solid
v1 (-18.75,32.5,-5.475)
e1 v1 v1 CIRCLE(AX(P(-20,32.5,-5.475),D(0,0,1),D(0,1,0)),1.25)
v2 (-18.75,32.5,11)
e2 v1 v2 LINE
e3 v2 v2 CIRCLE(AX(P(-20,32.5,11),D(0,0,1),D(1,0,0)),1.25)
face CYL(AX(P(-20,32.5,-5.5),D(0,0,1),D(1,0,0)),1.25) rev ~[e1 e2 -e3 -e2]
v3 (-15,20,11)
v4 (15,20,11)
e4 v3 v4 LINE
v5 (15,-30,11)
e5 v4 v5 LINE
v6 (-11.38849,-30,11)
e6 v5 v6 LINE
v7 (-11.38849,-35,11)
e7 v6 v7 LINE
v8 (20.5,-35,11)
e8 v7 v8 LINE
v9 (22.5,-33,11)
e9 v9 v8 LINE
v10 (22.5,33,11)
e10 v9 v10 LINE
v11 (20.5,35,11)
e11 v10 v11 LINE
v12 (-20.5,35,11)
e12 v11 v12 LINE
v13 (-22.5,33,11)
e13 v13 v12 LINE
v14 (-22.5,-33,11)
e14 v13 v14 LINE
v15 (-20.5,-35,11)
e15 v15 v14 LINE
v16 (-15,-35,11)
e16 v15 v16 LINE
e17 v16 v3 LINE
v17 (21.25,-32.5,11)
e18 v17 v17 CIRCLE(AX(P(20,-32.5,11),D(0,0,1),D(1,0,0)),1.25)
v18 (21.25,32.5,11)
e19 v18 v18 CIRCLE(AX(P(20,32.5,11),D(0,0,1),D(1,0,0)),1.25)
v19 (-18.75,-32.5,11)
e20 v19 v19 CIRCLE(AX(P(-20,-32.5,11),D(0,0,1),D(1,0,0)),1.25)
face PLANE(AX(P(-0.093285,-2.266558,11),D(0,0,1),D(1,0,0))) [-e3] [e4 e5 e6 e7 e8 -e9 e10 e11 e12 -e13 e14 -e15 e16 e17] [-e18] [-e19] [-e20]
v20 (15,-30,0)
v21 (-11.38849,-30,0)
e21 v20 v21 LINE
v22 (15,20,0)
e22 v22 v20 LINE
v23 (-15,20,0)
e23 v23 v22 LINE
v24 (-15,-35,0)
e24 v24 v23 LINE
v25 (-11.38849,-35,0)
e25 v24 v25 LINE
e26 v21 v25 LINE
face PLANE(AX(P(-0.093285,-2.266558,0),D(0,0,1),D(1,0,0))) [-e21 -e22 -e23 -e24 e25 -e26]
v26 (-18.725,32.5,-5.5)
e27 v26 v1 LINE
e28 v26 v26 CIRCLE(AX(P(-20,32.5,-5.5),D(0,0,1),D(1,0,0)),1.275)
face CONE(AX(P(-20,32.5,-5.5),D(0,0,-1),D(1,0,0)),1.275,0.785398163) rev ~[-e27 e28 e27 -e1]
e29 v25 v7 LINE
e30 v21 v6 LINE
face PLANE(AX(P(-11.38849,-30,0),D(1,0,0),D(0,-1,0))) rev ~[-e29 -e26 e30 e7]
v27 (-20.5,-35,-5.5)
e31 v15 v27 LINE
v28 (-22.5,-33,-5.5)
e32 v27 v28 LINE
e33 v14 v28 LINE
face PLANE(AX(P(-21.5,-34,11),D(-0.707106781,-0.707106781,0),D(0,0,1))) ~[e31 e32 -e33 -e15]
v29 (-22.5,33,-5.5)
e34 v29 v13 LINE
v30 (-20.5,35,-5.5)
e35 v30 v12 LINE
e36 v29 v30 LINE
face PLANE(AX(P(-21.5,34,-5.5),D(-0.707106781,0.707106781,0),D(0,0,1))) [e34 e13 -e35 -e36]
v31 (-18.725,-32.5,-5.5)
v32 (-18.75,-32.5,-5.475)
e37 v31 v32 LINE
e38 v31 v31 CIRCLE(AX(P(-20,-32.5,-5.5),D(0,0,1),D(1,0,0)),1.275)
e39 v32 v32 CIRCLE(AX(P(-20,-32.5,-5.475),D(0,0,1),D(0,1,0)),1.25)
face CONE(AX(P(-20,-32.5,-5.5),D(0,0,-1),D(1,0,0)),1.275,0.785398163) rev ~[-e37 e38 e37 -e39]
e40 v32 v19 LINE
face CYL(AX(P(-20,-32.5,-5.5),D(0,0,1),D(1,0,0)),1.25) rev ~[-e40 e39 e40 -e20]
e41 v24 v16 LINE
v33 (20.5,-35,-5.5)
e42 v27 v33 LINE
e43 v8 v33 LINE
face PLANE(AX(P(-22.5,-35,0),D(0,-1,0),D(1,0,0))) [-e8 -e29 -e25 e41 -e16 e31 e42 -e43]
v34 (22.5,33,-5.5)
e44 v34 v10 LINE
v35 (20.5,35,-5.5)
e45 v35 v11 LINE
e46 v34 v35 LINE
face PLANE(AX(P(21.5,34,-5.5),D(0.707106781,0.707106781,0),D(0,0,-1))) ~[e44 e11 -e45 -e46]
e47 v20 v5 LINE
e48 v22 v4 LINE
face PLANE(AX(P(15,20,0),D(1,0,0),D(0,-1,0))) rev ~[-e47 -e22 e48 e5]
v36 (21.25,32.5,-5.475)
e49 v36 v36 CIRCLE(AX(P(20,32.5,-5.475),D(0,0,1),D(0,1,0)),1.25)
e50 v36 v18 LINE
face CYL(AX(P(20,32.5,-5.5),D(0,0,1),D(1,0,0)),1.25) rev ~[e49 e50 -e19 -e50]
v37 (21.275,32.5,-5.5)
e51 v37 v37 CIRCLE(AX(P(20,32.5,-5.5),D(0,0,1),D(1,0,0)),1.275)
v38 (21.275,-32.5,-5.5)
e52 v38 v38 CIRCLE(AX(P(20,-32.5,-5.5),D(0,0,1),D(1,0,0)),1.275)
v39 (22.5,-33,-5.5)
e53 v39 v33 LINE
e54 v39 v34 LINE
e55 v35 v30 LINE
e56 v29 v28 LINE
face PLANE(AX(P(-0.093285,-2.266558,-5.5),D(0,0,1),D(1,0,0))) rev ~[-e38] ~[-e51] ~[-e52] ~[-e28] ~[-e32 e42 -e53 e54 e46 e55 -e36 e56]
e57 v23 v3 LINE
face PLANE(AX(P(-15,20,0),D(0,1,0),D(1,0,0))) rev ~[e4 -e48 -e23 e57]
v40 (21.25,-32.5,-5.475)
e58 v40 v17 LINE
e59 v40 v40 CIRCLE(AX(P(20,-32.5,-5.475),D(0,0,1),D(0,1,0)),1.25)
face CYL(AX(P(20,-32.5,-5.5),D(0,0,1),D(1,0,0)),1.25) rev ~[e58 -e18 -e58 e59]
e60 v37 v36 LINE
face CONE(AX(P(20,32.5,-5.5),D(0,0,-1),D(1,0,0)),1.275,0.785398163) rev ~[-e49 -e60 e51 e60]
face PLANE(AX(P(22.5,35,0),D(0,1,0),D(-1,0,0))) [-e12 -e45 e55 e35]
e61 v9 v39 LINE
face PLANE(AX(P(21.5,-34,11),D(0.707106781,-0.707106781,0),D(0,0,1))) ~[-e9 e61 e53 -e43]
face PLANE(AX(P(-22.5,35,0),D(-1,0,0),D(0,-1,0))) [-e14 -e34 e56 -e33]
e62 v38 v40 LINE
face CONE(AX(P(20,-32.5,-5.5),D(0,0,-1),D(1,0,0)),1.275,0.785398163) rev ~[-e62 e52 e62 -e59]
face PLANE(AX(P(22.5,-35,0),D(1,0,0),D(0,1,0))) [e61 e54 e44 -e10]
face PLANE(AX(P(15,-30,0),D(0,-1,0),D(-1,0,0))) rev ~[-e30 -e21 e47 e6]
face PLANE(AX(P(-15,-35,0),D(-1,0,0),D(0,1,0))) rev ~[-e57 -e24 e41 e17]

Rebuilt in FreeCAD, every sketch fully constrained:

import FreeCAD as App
import Part
import Sketcher
from FreeCAD import Vector


def edges_at(feature, points):
    """Names of the edges that pass closest to the given points."""
    edges = feature.Shape.Edges
    near = lambda p: min(range(len(edges)), key=lambda i: edges[i].distToShape(Part.Vertex(*p))[0])
    return sorted({f"Edge{near(p) + 1}" for p in points})


def add_polygon(sketch, points):
    """Adds a closed chain of lines whose ends are joined by coincident constraints."""
    first, n = sketch.GeometryCount, len(points)
    for a, b in zip(points, points[1:] + points[:1]):
        sketch.addGeometry(Part.LineSegment(App.Vector(*a, 0), App.Vector(*b, 0)), False)
    for i in range(n):
        sketch.addConstraint(Sketcher.Constraint("Coincident", first + i, 2, first + (i + 1) % n, 1))

doc = App.newDocument("Part")
body = doc.addObject("PartDesign::Body", "Body")

sketch1 = body.newObject("Sketcher::SketchObject", "Sketch")
sketch1.AttachmentSupport = (doc.getObject("XY_Plane"), [""])
sketch1.MapMode = "FlatFace"
add_polygon(sketch1, [(-11.38849, -35), (22.5, -35), (22.5, 35), (-22.5, 35), (-22.5, -35), (-15, -35), (-15, 20), (15, 20), (15, -30), (-11.38849, -30)])
sketch1.addConstraint([
    Sketcher.Constraint("Horizontal", 0),
    Sketcher.Constraint("Vertical", 1),
    Sketcher.Constraint("Horizontal", 2),
    Sketcher.Constraint("Vertical", 3),
    Sketcher.Constraint("Horizontal", 4),
    Sketcher.Constraint("Vertical", 5),
    Sketcher.Constraint("Horizontal", 6),
    Sketcher.Constraint("Vertical", 7),
    Sketcher.Constraint("Horizontal", 8),
    Sketcher.Constraint("Vertical", 9),
    Sketcher.Constraint("Symmetric", 0, 2, 2, 2, -1, 1),
    Sketcher.Constraint("Horizontal", 0, 2, 3, 2),
    Sketcher.Constraint("DistanceX", 2, 2, 2, 1, 45.0),
    Sketcher.Constraint("DistanceX", 6, 1, 6, 2, 30.0),
    Sketcher.Constraint("DistanceY", 1, 1, 1, 2, 70.0),
    Sketcher.Constraint("DistanceY", 5, 1, 5, 2, 55.0),
    Sketcher.Constraint("DistanceY", 7, 2, 7, 1, 50.0),
    Sketcher.Constraint("DistanceX", 4, 1, 4, 2, 7.5),
    Sketcher.Constraint("DistanceX", 0, 1, 0, 2, 33.88849),
])
pad1 = body.newObject("PartDesign::Pad", "Pad")
pad1.Profile = sketch1
pad1.Length = 11

sketch2 = body.newObject("Sketcher::SketchObject", "Sketch001")
sketch2.AttachmentSupport = (doc.getObject("XY_Plane"), [""])
sketch2.MapMode = "FlatFace"
add_polygon(sketch2, [(22.5, -35), (22.5, 35), (-22.5, 35), (-22.5, -35)])
sketch2.addConstraint([
    Sketcher.Constraint("Vertical", 0),
    Sketcher.Constraint("Horizontal", 1),
    Sketcher.Constraint("Vertical", 2),
    Sketcher.Constraint("Horizontal", 3),
    Sketcher.Constraint("Symmetric", 0, 2, 2, 2, -1, 1),
    Sketcher.Constraint("DistanceX", 1, 2, 1, 1, 45.0),
    Sketcher.Constraint("DistanceY", 0, 1, 0, 2, 70.0),
])
pad2 = body.newObject("PartDesign::Pad", "Pad001")
pad2.Profile = sketch2
pad2.Length = 5.5
pad2.Reversed = True

sketch3 = body.newObject("Sketcher::SketchObject", "Sketch002")
sketch3.AttachmentSupport = (doc.getObject("XY_Plane"), [""])
sketch3.MapMode = "FlatFace"
sketch3.AttachmentOffset = App.Placement(Vector(0, 0, -5.5), App.Rotation())
sketch3.addGeometry([
    Part.Circle(Vector(-20, 32.5, 0), Vector(0, 0, 1), 1.25),
    Part.Circle(Vector(20, 32.5, 0), Vector(0, 0, 1), 1.25),
    Part.Circle(Vector(20, -32.5, 0), Vector(0, 0, 1), 1.25),
    Part.Circle(Vector(-20, -32.5, 0), Vector(0, 0, 1), 1.25),
], False)
sketch3.addConstraint([
    Sketcher.Constraint("Equal", 0, 1),
    Sketcher.Constraint("Equal", 1, 2),
    Sketcher.Constraint("Equal", 2, 3),
    Sketcher.Constraint("Symmetric", 0, 3, 2, 3, -1, 1),
    Sketcher.Constraint("Symmetric", 1, 3, 3, 3, -1, 1),
    Sketcher.Constraint("Symmetric", 0, 3, 1, 3, -2),
    Sketcher.Constraint("Diameter", 0, 2.5),
    Sketcher.Constraint("DistanceX", 0, 3, -1, 1, 20.0),
    Sketcher.Constraint("DistanceY", 2, 3, 1, 3, 65.0),
])
doc.recompute()
hole = body.newObject("PartDesign::Hole", "Hole")
hole.Profile = sketch3
hole.ThreadType = "None"
hole.Diameter = 2.5
hole.DepthType = "ThroughAll"
hole.HoleCutType = "Countersink"
hole.HoleCutDiameter = 2.55
hole.HoleCutCountersinkAngle = 90
hole.Reversed = True
doc.recompute()

chamfer = body.newObject("PartDesign::Chamfer", "Chamfer")
chamfer.Base = (hole, edges_at(hole, [
    (-22.5, -35, 2.75),
    (-22.5, 35, 2.75),
    (22.5, 35, 2.75),
    (22.5, -35, 2.75),
]))
chamfer.Size = 2

doc.recompute()
